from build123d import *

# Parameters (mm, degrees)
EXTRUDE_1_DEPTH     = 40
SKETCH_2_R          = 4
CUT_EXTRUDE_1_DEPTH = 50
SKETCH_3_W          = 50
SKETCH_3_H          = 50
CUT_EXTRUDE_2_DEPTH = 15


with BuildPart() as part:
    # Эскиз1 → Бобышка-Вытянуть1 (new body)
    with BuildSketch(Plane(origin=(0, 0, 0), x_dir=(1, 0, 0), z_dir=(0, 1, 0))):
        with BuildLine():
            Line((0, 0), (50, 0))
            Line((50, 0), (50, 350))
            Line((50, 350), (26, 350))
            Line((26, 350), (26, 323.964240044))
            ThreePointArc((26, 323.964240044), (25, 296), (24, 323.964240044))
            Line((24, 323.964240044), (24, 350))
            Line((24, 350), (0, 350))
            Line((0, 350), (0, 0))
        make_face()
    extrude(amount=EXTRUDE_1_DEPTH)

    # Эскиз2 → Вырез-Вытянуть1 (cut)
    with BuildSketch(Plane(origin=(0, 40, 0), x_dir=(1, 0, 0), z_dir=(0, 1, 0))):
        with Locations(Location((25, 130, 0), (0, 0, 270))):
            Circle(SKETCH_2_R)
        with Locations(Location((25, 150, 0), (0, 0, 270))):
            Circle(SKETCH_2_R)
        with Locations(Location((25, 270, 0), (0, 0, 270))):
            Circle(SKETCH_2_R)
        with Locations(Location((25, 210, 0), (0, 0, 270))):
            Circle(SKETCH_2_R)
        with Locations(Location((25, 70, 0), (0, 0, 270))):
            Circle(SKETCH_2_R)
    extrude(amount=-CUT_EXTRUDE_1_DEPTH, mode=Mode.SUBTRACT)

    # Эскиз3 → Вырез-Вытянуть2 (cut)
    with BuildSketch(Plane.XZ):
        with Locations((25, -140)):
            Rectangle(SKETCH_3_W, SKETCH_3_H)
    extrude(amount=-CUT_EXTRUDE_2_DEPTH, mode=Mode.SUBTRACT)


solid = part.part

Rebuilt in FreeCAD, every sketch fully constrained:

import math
import FreeCAD as App
import Part
import Sketcher
from FreeCAD import Vector

doc = App.newDocument("Part")
body = doc.addObject("PartDesign::Body", "Body")

# Sketch on XZ plane
sketch1 = doc.addObject("Sketcher::SketchObject", "Sketch")
body.addObject(sketch1)
sketch1.AttachmentSupport = (doc.XZ_Plane, [""])
sketch1.MapMode = "FlatFace"
sketch1.addGeometry(Part.LineSegment(Vector(0, 0, 0), Vector(50, 0, 0)), False)
sketch1.addGeometry(Part.LineSegment(Vector(50, 0, 0), Vector(50, -350, 0)), False)
sketch1.addGeometry(Part.LineSegment(Vector(50, -350, 0), Vector(26, -350, 0)), False)
sketch1.addGeometry(Part.LineSegment(Vector(26, -350, 0), Vector(26, -324, 0)), False)
sketch1.addGeometry(Part.ArcOfCircle(Part.Circle(Vector(25, -310, 0), Vector(0, 0, 1), 14), math.radians(-86), math.radians(266)), False)
sketch1.addGeometry(Part.LineSegment(Vector(24, -324, 0), Vector(24, -350, 0)), False)
sketch1.addGeometry(Part.LineSegment(Vector(24, -350, 0), Vector(0, -350, 0)), False)
sketch1.addGeometry(Part.LineSegment(Vector(0, -350, 0), Vector(0, 0, 0)), False)
sketch1.addConstraint(Sketcher.Constraint("Coincident", 0, 2, 1, 1))
sketch1.addConstraint(Sketcher.Constraint("Coincident", 1, 2, 2, 1))
sketch1.addConstraint(Sketcher.Constraint("Coincident", 2, 2, 3, 1))
sketch1.addConstraint(Sketcher.Constraint("Coincident", 3, 2, 4, 1))
sketch1.addConstraint(Sketcher.Constraint("Coincident", 4, 2, 5, 1))
sketch1.addConstraint(Sketcher.Constraint("Coincident", 5, 2, 6, 1))
sketch1.addConstraint(Sketcher.Constraint("Coincident", 6, 2, 7, 1))
sketch1.addConstraint(Sketcher.Constraint("Coincident", 7, 2, 0, 1))
sketch1.addConstraint(Sketcher.Constraint("Horizontal", 0))
sketch1.addConstraint(Sketcher.Constraint("Vertical", 1))
sketch1.addConstraint(Sketcher.Constraint("Horizontal", 2))
sketch1.addConstraint(Sketcher.Constraint("Vertical", 3))
sketch1.addConstraint(Sketcher.Constraint("Vertical", 5))
sketch1.addConstraint(Sketcher.Constraint("Horizontal", 6))
sketch1.addConstraint(Sketcher.Constraint("Vertical", 7))
sketch1.addConstraint(Sketcher.Constraint("Coincident", 7, 2, -1, 1))
sketch1.addConstraint(Sketcher.Constraint("Horizontal", 3, 2, 4, 2))
sketch1.addConstraint(Sketcher.Constraint("Horizontal", 2, 2, 5, 2))
sketch1.addConstraint(Sketcher.Constraint("Equal", 2, 6))
sketch1.addConstraint(Sketcher.Constraint("Radius", 4, 14.0))
sketch1.addConstraint(Sketcher.Constraint("DistanceX", 0, 1, 0, 2, 50.0))
sketch1.addConstraint(Sketcher.Constraint("DistanceX", 2, 2, 2, 1, 24.0))
sketch1.addConstraint(Sketcher.Constraint("DistanceY", 1, 2, 1, 1, 350.0))
sketch1.addConstraint(Sketcher.Constraint("DistanceY", 4, 3, -1, 1, 310.0))
pad1 = doc.addObject("PartDesign::Pad", "Pad")
body.addObject(pad1)
pad1.Profile = sketch1
pad1.Length = 40
pad1.Reversed = True

# Sketch on XZ plane
sketch2 = doc.addObject("Sketcher::SketchObject", "Sketch001")
body.addObject(sketch2)
sketch2.AttachmentSupport = (doc.XZ_Plane, [""])
sketch2.MapMode = "FlatFace"
sketch2.AttachmentOffset = App.Placement(Vector(0, 0, -40), App.Rotation())
sketch2.addGeometry(Part.Circle(Vector(25, -130, 0), Vector(0, 0, 1), 4), False)
sketch2.addGeometry(Part.Circle(Vector(25, -150, 0), Vector(0, 0, 1), 4), False)
sketch2.addGeometry(Part.Circle(Vector(25, -270, 0), Vector(0, 0, 1), 4), False)
sketch2.addGeometry(Part.Circle(Vector(25, -210, 0), Vector(0, 0, 1), 4), False)
sketch2.addGeometry(Part.Circle(Vector(25, -70, 0), Vector(0, 0, 1), 4), False)
sketch2.addConstraint(Sketcher.Constraint("Equal", 0, 1))
sketch2.addConstraint(Sketcher.Constraint("Equal", 1, 2))
sketch2.addConstraint(Sketcher.Constraint("Equal", 2, 3))
sketch2.addConstraint(Sketcher.Constraint("Equal", 3, 4))
sketch2.addConstraint(Sketcher.Constraint("Vertical", 0, 3, 1, 3))
sketch2.addConstraint(Sketcher.Constraint("Vertical", 1, 3, 2, 3))
sketch2.addConstraint(Sketcher.Constraint("Vertical", 2, 3, 3, 3))
sketch2.addConstraint(Sketcher.Constraint("Vertical", 3, 3, 4, 3))
sketch2.addConstraint(Sketcher.Constraint("Diameter", 0, 8.0))
sketch2.addConstraint(Sketcher.Constraint("DistanceX", -1, 1, 0, 3, 25.0))
sketch2.addConstraint(Sketcher.Constraint("DistanceY", 0, 3, -1, 1, 130.0))
sketch2.addConstraint(Sketcher.Constraint("DistanceY", 1, 3, -1, 1, 150.0))
sketch2.addConstraint(Sketcher.Constraint("DistanceY", 2, 3, -1, 1, 270.0))
sketch2.addConstraint(Sketcher.Constraint("DistanceY", 3, 3, -1, 1, 210.0))
sketch2.addConstraint(Sketcher.Constraint("DistanceY", 4, 3, -1, 1, 70.0))
pocket1 = doc.addObject("PartDesign::Pocket", "Pocket")
body.addObject(pocket1)
pocket1.Profile = sketch2
pocket1.Length = 50
pocket1.Reversed = True

# Sketch on XZ plane
sketch3 = doc.addObject("Sketcher::SketchObject", "Sketch002")
body.addObject(sketch3)
sketch3.AttachmentSupport = (doc.XZ_Plane, [""])
sketch3.MapMode = "FlatFace"
sketch3.addGeometry(Part.LineSegment(Vector(0, -115, 0), Vector(0, -165, 0)), False)
sketch3.addGeometry(Part.LineSegment(Vector(0, -165, 0), Vector(50, -165, 0)), False)
sketch3.addGeometry(Part.LineSegment(Vector(50, -165, 0), Vector(50, -115, 0)), False)
sketch3.addGeometry(Part.LineSegment(Vector(50, -115, 0), Vector(0, -115, 0)), False)
sketch3.addConstraint(Sketcher.Constraint("Coincident", 0, 2, 1, 1))
sketch3.addConstraint(Sketcher.Constraint("Coincident", 1, 2, 2, 1))
sketch3.addConstraint(Sketcher.Constraint("Coincident", 2, 2, 3, 1))
sketch3.addConstraint(Sketcher.Constraint("Coincident", 3, 2, 0, 1))
sketch3.addConstraint(Sketcher.Constraint("Vertical", 0))
sketch3.addConstraint(Sketcher.Constraint("Horizontal", 1))
sketch3.addConstraint(Sketcher.Constraint("Vertical", 2))
sketch3.addConstraint(Sketcher.Constraint("Horizontal", 3))
sketch3.addConstraint(Sketcher.Constraint("PointOnObject", 0, 2, -2))
sketch3.addConstraint(Sketcher.Constraint("Equal", 3, 0))
sketch3.addConstraint(Sketcher.Constraint("DistanceX", 1, 1, 1, 2, 50.0))
sketch3.addConstraint(Sketcher.Constraint("DistanceY", 0, 2, -1, 1, 165.0))
pocket2 = doc.addObject("PartDesign::Pocket", "Pocket001")
body.addObject(pocket2)
pocket2.Profile = sketch3
pocket2.Length = 15

doc.recompute()
